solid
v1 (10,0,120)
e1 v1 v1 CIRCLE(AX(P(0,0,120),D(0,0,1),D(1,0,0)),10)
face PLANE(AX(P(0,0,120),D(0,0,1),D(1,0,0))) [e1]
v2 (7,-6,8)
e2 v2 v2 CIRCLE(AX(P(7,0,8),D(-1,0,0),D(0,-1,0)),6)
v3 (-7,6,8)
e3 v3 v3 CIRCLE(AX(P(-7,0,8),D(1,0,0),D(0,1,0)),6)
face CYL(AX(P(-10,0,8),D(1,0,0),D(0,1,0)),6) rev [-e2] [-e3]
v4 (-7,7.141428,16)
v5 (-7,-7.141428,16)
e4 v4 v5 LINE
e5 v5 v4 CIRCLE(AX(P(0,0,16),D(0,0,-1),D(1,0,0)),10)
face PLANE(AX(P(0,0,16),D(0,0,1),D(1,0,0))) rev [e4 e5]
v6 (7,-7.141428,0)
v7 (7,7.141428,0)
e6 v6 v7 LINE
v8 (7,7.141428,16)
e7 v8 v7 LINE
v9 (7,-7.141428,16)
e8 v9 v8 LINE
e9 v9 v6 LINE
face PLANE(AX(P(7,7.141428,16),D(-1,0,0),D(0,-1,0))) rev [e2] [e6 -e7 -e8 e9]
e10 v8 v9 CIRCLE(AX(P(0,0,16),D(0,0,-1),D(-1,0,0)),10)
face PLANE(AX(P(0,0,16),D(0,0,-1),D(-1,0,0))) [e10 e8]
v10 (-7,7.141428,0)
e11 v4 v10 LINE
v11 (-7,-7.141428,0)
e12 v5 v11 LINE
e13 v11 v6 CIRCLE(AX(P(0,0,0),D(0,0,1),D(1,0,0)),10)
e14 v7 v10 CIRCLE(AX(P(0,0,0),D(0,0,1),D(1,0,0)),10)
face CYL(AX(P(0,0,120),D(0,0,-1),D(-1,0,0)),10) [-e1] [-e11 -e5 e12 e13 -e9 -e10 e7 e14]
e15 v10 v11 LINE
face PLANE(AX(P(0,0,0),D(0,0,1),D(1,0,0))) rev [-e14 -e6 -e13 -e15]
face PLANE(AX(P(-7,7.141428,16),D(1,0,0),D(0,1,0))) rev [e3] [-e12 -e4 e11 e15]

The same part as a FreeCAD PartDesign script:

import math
import FreeCAD as App
import Part
import Sketcher

V = App.Vector

doc = App.newDocument("Part")
params = doc.addObject("Spreadsheet::Sheet", "Params")
for row, (alias, value) in enumerate([
    ("sketch1_diameter", "20 mm"),
    ("pad1_length", "120 mm"),
    ("sketch2_radius", "10 mm"),
    ("pocket1_length", "16 mm"),
    ("sketch3_diameter", "12 mm"),
], start=1):
    params.set(f"A{row}", alias)
    params.set(f"B{row}", "=" + value)
    params.setAlias(f"B{row}", alias)

body = doc.addObject("PartDesign::Body", "Body")

# Sketch on XY plane
sketch1 = body.newObject("Sketcher::SketchObject", "Sketch")
sketch1.AttachmentSupport = (doc.getObject("XY_Plane"), [""])
sketch1.MapMode = "FlatFace"
sketch1.addGeometry(Part.Circle(V(0, 0, 0), V(0, 0, 1), 10), False)
sketch1.addConstraint([
    Sketcher.Constraint("Coincident", 0, 3, -1, 1),
    Sketcher.Constraint("Diameter", 0, 20.0),
])
sketch1.setExpression("Constraints[1]", "Params.sketch1_diameter")
pad1 = body.newObject("PartDesign::Pad", "Pad")
pad1.Profile = sketch1
pad1.setExpression("Length", "Params.pad1_length")

# Sketch on XY plane
sketch2 = body.newObject("Sketcher::SketchObject", "Sketch001")
sketch2.AttachmentSupport = (doc.getObject("XY_Plane"), [""])
sketch2.MapMode = "FlatFace"
sketch2.addGeometry([
    Part.LineSegment(V(7, -7, 0), V(7, 7, 0)),
    Part.ArcOfCircle(Part.Circle(V(0, 0, 0), V(0, 0, 1), 10), math.radians(-46), math.radians(46)),
    Part.LineSegment(V(-7, 7, 0), V(-7, -7, 0)),
    Part.ArcOfCircle(Part.Circle(V(0, 0, 0), V(0, 0, 1), 10), math.radians(134), math.radians(226)),
], False)
sketch2.addConstraint([
    Sketcher.Constraint("Coincident", 0, 1, 1, 1),
    Sketcher.Constraint("Coincident", 1, 2, 0, 2),
    Sketcher.Constraint("Coincident", 2, 1, 3, 1),
    Sketcher.Constraint("Coincident", 3, 2, 2, 2),
    Sketcher.Constraint("Vertical", 0),
    Sketcher.Constraint("Vertical", 2),
    Sketcher.Constraint("Coincident", 1, 3, -1, 1),
    Sketcher.Constraint("Coincident", 3, 3, -1, 1),
    Sketcher.Constraint("Equal", 1, 3),
    Sketcher.Constraint("Horizontal", 1, 2, 2, 1),
    Sketcher.Constraint("Radius", 1, 10.0),
    Sketcher.Constraint("DistanceX", -1, 1, 0, 1, 7.0),
])
sketch2.setExpression("Constraints[10]", "Params.sketch2_radius")
pocket1 = body.newObject("PartDesign::Pocket", "Pocket")
pocket1.Profile = sketch2
pocket1.setExpression("Length", "Params.pocket1_length")
pocket1.Reversed = True

# Sketch on YZ plane
sketch3 = body.newObject("Sketcher::SketchObject", "Sketch002")
sketch3.AttachmentSupport = (doc.getObject("YZ_Plane"), [""])
sketch3.MapMode = "FlatFace"
sketch3.AttachmentOffset = App.Placement(V(0, 0, 7), App.Rotation())
sketch3.addGeometry(Part.Circle(V(0, 8, 0), V(0, 0, 1), 6), False)
sketch3.addConstraint([
    Sketcher.Constraint("PointOnObject", 0, 3, -2),
    Sketcher.Constraint("Diameter", 0, 12.0),
    Sketcher.Constraint("DistanceY", -1, 1, 0, 3, 8.0),
])
sketch3.setExpression("Constraints[1]", "Params.sketch3_diameter")
pocket2 = body.newObject("PartDesign::Pocket", "Pocket001")
pocket2.Profile = sketch3
pocket2.Type = "ThroughAll"
pocket2.Midplane = True

doc.recompute()
